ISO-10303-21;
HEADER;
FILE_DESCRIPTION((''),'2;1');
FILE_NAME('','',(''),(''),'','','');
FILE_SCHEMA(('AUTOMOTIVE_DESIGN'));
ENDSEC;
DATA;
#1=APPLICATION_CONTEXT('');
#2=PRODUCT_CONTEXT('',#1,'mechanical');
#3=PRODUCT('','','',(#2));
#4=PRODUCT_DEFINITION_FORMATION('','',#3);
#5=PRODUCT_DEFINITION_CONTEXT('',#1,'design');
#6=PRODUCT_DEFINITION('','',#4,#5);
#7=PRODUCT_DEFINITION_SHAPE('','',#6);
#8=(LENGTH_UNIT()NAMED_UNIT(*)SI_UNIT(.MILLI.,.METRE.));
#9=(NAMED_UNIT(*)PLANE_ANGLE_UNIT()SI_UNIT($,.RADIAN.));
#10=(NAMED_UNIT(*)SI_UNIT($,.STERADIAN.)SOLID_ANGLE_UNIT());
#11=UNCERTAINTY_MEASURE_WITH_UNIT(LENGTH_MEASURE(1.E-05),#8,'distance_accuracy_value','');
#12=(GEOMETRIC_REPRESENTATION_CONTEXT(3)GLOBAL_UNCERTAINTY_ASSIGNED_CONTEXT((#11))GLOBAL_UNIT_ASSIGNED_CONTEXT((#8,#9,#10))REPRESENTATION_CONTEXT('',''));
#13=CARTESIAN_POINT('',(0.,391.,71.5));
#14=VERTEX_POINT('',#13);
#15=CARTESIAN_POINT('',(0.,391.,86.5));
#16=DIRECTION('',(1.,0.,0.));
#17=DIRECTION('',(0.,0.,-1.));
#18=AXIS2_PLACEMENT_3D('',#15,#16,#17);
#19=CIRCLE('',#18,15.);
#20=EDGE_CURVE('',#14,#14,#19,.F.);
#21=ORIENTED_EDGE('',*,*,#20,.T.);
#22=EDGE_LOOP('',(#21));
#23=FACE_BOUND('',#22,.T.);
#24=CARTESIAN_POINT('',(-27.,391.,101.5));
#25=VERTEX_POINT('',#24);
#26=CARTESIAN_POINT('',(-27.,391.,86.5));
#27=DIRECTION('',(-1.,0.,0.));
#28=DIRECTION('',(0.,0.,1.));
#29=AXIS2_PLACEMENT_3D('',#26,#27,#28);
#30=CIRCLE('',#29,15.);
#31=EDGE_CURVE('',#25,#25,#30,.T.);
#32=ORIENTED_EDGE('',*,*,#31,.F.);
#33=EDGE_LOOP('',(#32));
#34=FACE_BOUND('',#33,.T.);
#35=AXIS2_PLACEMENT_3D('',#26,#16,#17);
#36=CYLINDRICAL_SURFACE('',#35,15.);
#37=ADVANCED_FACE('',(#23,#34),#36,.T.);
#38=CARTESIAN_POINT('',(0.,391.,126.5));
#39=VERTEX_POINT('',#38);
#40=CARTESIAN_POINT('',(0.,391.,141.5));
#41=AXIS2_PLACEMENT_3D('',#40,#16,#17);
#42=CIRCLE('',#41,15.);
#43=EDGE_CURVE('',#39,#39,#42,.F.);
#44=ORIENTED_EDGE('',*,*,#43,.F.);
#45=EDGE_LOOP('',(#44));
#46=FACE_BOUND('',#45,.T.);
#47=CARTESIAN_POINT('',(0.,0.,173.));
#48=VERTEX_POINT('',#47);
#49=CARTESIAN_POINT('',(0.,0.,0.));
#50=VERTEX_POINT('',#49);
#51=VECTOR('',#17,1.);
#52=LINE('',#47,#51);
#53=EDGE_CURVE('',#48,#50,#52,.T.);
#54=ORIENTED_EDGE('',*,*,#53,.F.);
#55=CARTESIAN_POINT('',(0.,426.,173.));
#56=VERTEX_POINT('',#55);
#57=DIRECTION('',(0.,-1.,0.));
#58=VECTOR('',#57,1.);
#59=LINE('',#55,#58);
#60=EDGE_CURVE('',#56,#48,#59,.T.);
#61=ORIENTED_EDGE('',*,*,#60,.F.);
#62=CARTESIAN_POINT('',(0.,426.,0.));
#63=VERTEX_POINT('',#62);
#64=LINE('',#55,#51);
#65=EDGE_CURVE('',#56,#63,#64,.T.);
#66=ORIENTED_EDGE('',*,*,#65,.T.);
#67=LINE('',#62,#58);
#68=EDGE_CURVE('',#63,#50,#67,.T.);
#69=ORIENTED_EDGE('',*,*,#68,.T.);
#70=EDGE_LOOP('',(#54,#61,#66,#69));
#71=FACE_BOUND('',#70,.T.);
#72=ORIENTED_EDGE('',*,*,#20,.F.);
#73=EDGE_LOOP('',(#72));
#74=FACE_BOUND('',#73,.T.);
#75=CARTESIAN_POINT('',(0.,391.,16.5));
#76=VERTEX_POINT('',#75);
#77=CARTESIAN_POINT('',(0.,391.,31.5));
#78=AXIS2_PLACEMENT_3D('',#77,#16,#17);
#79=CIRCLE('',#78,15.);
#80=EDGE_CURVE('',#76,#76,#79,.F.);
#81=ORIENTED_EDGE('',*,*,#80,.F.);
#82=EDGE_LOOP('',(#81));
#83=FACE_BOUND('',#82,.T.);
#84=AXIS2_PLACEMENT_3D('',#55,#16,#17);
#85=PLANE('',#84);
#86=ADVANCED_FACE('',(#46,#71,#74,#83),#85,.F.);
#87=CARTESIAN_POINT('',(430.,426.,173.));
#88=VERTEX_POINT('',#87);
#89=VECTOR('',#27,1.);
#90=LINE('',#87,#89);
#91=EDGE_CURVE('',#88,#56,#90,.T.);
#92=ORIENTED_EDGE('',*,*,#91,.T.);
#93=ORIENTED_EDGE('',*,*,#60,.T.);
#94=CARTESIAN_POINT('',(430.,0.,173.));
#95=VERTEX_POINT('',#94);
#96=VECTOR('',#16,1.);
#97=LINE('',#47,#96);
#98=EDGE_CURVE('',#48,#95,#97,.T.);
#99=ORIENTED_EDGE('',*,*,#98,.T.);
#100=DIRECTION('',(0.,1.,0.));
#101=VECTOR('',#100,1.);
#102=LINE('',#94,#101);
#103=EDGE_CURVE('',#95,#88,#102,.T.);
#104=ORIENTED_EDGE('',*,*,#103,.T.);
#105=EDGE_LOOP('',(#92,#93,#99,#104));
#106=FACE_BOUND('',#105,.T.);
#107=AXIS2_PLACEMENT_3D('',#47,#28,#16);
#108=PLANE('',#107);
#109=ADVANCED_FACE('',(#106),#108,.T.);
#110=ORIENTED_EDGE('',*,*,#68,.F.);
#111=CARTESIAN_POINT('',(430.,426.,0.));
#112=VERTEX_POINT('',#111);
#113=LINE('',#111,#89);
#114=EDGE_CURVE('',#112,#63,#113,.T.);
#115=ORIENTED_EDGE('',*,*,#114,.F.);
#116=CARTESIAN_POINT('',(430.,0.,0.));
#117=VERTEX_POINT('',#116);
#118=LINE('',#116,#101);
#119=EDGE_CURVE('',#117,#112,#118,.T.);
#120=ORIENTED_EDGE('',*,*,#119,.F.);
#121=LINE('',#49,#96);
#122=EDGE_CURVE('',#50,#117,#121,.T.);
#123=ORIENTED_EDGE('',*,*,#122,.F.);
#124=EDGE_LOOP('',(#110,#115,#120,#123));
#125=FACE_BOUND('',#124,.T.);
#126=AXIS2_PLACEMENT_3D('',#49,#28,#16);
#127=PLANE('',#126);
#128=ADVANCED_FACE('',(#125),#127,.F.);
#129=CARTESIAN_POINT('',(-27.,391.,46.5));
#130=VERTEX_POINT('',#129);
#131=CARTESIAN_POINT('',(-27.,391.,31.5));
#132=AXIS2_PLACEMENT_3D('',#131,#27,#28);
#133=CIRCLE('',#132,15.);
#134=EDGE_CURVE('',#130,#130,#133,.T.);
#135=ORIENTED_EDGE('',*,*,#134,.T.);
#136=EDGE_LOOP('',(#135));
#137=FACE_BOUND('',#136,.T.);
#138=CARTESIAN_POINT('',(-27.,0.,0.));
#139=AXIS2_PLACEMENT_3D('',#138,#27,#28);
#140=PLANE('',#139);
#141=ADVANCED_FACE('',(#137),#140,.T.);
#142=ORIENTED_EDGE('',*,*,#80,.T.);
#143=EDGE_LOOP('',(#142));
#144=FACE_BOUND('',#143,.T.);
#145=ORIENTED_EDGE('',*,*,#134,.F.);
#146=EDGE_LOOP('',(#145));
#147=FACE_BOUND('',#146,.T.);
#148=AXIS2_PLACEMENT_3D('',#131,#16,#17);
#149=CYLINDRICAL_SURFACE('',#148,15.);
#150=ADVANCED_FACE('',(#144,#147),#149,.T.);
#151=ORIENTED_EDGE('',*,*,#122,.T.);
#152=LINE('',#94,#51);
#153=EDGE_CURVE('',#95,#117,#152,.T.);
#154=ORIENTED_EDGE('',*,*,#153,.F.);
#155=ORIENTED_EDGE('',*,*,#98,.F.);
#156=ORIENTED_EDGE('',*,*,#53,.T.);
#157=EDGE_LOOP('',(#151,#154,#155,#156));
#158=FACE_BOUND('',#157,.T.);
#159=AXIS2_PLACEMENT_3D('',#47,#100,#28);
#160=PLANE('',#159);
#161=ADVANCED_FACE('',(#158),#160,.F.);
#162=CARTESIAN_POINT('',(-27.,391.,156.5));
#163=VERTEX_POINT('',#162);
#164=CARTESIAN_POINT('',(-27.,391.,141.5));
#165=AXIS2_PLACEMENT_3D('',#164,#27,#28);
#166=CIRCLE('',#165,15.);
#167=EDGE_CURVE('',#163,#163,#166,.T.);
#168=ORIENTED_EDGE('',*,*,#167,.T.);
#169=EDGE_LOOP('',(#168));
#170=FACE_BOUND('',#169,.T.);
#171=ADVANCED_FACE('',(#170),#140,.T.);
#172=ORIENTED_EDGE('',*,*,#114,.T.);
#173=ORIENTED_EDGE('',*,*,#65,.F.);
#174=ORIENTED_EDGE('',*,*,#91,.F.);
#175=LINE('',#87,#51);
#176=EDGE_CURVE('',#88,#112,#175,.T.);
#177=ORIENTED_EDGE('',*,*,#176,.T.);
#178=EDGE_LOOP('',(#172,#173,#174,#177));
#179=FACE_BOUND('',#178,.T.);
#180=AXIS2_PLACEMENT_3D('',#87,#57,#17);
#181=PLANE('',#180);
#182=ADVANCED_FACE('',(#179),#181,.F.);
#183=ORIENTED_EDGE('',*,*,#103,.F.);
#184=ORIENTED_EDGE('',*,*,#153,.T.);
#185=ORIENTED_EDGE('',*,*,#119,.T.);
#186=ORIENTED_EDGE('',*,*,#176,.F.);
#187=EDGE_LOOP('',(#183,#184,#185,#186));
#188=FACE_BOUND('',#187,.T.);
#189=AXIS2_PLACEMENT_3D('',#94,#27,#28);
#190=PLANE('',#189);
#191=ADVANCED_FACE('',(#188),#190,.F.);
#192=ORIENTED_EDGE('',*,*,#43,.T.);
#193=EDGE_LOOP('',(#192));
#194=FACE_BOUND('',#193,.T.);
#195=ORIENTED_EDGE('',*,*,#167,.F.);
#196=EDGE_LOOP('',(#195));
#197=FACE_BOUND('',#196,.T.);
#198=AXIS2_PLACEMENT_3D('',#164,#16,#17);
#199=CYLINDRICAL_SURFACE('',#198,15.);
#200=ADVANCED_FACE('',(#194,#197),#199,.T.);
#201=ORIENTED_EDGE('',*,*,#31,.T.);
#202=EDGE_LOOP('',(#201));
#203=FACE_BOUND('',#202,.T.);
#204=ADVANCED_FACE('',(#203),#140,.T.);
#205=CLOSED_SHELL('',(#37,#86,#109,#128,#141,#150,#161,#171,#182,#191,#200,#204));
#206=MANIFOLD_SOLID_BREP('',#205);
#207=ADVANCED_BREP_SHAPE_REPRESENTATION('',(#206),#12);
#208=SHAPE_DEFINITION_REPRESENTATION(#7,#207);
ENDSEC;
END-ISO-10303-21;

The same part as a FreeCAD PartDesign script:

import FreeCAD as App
import Part
import Sketcher

V = App.Vector


def add_polygon(sketch, points):
    """Adds a closed chain of lines whose ends are joined by coincident constraints."""
    first, n = sketch.GeometryCount, len(points)
    for a, b in zip(points, points[1:] + points[:1]):
        sketch.addGeometry(Part.LineSegment(App.Vector(*a, 0), App.Vector(*b, 0)), False)
    for i in range(n):
        sketch.addConstraint(Sketcher.Constraint("Coincident", first + i, 2, first + (i + 1) % n, 1))

doc = App.newDocument("Part")
body = doc.addObject("PartDesign::Body", "Body")

# Sketch on XY plane
sketch1 = body.newObject("Sketcher::SketchObject", "Sketch")
sketch1.AttachmentSupport = (doc.getObject("XY_Plane"), [""])
sketch1.MapMode = "FlatFace"
add_polygon(sketch1, [(0, 426), (0, 0), (430, 0), (430, 426)])  # lines 0-3
sketch1.addConstraint([
    Sketcher.Constraint("Vertical", 0),
    Sketcher.Constraint("Horizontal", 1),
    Sketcher.Constraint("Vertical", 2),
    Sketcher.Constraint("Horizontal", 3),
    Sketcher.Constraint("Coincident", 0, 2, -1, 1),
    Sketcher.Constraint("DistanceX", 1, 1, 1, 2, 430.0),
    Sketcher.Constraint("DistanceY", 0, 2, 0, 1, 426.0),
])
pad1 = body.newObject("PartDesign::Pad", "Pad")
pad1.Profile = sketch1
pad1.Length = 173

# Sketch on YZ plane
sketch2 = body.newObject("Sketcher::SketchObject", "Sketch001")
sketch2.AttachmentSupport = (doc.getObject("YZ_Plane"), [""])
sketch2.MapMode = "FlatFace"
sketch2.addGeometry([
    Part.Circle(V(391, 86, 0), V(0, 0, 1), 15),
    Part.Circle(V(391, 32, 0), V(0, 0, 1), 15),
    Part.Circle(V(391, 142, 0), V(0, 0, 1), 15),
], False)
sketch2.addConstraint([
    Sketcher.Constraint("Equal", 0, 1),
    Sketcher.Constraint("Equal", 1, 2),
    Sketcher.Constraint("Vertical", 0, 3, 1, 3),
    Sketcher.Constraint("Vertical", 1, 3, 2, 3),
    Sketcher.Constraint("Diameter", 0, 30.0),
    Sketcher.Constraint("DistanceX", -1, 1, 0, 3, 391.0),
    Sketcher.Constraint("DistanceY", 1, 3, 0, 3, 55.0),
    Sketcher.Constraint("DistanceY", 0, 3, 2, 3, 55.0),
    Sketcher.Constraint("DistanceY", -1, 1, 0, 3, 86.5),
])
pad2 = body.newObject("PartDesign::Pad", "Pad001")
pad2.Profile = sketch2
pad2.Length = 27
pad2.Reversed = True

doc.recompute()
